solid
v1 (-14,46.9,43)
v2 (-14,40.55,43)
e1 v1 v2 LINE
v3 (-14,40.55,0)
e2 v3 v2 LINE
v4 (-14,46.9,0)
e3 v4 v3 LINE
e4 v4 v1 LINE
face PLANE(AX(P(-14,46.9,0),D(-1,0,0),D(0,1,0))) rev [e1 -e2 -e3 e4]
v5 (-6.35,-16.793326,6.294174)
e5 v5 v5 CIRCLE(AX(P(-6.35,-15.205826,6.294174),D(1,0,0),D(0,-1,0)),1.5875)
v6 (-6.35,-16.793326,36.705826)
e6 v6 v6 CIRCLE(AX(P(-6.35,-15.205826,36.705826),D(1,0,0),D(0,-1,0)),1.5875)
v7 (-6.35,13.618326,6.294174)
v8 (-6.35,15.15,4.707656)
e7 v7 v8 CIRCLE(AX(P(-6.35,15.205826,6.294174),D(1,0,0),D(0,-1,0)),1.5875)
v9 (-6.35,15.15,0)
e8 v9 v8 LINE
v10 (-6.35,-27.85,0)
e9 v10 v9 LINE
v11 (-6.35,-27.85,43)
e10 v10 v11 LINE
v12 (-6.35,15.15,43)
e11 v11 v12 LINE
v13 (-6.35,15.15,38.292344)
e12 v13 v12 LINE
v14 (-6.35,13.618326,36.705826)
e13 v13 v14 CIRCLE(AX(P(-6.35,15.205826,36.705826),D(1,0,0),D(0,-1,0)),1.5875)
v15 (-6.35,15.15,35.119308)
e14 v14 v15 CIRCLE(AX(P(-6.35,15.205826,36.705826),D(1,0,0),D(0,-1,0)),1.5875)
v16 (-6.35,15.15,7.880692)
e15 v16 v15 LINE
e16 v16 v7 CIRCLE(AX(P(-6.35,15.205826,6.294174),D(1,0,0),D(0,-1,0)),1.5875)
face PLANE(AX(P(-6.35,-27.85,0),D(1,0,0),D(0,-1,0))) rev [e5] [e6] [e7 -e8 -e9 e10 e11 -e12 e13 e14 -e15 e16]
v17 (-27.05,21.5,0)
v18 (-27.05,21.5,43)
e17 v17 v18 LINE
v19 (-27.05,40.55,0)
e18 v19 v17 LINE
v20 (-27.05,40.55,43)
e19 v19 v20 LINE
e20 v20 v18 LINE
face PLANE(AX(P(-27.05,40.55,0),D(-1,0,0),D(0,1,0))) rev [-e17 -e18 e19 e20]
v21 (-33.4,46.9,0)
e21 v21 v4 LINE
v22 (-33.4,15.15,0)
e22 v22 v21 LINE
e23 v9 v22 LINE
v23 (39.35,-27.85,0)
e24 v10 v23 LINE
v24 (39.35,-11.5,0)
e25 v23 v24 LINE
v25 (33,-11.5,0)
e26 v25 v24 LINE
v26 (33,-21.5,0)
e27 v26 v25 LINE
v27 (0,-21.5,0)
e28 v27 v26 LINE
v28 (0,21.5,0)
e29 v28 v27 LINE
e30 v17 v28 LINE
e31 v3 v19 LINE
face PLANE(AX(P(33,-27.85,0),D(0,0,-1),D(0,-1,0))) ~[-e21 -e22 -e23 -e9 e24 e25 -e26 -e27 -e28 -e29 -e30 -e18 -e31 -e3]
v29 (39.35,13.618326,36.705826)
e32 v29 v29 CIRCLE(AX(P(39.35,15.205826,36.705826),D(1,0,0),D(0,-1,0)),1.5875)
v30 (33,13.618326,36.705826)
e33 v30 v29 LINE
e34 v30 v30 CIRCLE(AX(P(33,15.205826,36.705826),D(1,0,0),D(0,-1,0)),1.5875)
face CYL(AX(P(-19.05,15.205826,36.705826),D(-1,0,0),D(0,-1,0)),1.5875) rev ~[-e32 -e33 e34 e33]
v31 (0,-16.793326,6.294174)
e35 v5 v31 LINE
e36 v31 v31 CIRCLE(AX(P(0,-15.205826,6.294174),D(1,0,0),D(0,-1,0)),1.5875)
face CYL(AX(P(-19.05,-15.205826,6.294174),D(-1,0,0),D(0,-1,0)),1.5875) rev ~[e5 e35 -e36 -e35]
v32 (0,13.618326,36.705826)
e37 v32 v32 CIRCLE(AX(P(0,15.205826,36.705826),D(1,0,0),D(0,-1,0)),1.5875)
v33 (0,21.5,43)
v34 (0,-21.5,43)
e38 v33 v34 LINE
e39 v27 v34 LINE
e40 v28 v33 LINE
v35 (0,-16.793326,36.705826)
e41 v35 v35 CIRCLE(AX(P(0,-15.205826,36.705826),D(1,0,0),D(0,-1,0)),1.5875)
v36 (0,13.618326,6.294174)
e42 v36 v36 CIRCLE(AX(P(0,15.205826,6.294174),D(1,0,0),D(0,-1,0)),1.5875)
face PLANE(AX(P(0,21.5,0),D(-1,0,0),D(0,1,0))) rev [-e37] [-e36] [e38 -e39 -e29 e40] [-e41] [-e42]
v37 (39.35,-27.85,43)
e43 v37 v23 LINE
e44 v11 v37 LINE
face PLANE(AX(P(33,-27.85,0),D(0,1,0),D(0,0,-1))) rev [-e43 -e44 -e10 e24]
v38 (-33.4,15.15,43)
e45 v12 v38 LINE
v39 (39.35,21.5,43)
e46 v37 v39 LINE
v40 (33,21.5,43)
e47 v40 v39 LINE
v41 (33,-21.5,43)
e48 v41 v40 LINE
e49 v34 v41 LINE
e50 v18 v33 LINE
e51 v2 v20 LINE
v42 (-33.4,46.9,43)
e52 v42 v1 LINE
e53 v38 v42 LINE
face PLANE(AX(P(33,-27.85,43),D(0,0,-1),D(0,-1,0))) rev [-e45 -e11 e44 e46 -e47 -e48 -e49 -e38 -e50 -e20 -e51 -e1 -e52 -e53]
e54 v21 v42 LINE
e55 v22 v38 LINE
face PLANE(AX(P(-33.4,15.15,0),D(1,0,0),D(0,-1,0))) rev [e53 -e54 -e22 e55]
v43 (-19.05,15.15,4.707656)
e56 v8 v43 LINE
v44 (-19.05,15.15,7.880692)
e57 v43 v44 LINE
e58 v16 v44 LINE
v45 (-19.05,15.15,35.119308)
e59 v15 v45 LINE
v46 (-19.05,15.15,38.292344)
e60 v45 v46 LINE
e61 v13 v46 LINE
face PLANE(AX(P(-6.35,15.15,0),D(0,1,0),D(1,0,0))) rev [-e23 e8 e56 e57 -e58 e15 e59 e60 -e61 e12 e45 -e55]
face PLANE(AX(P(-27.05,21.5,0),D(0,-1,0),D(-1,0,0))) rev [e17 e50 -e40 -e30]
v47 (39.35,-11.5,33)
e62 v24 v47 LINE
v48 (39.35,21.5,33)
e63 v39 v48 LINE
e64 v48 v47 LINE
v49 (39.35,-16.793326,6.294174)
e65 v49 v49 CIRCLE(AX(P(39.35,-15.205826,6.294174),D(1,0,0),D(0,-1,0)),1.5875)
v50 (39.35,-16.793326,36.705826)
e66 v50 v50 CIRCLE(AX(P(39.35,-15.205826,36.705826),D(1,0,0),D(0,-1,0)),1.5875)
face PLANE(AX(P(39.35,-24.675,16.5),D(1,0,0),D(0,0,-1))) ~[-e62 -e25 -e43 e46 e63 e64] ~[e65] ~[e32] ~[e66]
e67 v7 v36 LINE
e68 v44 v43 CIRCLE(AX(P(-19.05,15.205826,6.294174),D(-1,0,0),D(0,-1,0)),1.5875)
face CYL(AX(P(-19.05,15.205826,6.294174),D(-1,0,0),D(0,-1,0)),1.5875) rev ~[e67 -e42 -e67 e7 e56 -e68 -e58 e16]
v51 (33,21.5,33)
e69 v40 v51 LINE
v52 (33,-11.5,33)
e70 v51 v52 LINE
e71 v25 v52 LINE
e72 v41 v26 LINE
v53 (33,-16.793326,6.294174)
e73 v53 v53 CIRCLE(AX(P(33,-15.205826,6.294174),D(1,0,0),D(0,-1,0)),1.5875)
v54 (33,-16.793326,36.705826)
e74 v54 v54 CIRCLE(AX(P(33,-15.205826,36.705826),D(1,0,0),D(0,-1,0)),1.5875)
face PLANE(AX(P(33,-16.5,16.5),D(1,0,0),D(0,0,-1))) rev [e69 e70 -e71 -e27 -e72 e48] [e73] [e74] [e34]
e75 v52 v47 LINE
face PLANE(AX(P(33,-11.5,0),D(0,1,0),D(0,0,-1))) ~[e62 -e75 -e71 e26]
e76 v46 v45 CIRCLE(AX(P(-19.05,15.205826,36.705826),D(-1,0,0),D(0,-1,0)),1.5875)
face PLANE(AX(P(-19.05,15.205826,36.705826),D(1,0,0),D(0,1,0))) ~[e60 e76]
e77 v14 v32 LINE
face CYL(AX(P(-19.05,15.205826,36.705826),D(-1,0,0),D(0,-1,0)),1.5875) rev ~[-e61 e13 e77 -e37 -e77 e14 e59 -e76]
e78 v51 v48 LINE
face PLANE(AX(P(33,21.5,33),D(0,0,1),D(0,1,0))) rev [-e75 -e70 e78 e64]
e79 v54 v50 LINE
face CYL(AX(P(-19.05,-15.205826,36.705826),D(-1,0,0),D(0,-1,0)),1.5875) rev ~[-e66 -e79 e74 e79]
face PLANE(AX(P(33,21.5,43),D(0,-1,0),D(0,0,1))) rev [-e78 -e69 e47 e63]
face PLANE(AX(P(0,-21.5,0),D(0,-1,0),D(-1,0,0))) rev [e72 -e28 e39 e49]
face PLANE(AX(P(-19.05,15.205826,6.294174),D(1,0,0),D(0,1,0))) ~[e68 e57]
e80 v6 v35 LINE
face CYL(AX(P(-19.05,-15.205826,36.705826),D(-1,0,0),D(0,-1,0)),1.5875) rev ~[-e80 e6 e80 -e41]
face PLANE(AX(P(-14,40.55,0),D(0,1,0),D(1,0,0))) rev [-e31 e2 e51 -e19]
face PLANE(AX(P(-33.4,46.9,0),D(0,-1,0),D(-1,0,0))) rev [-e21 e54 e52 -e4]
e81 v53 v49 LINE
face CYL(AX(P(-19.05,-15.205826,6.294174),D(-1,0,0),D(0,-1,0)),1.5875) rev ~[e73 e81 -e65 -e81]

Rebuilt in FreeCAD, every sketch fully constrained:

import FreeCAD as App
import Part
import Sketcher
Q = App.Units.Quantity

doc = App.newDocument("Part")
body = doc.addObject("PartDesign::Body", "Body")

sketch1 = doc.addObject("Sketcher::SketchObject", "Sketch")
body.addObject(sketch1)
sketch1.AttachmentSupport = (doc.XY_Plane, [""])
sketch1.MapMode = "FlatFace"
sketch1.addGeometry([
    Part.LineSegment(App.Vector(-6, 15, 0), App.Vector(-6, -28, 0)),
    Part.LineSegment(App.Vector(-6, -28, 0), App.Vector(33, -28, 0)),
    Part.LineSegment(App.Vector(33, -28, 0), App.Vector(33, -22, 0)),
    Part.LineSegment(App.Vector(33, -22, 0), App.Vector(0, -22, 0)),
    Part.LineSegment(App.Vector(0, -22, 0), App.Vector(0, 22, 0)),
    Part.LineSegment(App.Vector(0, 22, 0), App.Vector(-27, 22, 0)),
    Part.LineSegment(App.Vector(-27, 22, 0), App.Vector(-27, 41, 0)),
    Part.LineSegment(App.Vector(-27, 41, 0), App.Vector(-14, 41, 0)),
    Part.LineSegment(App.Vector(-14, 41, 0), App.Vector(-14, 47, 0)),
    Part.LineSegment(App.Vector(-14, 47, 0), App.Vector(-33, 47, 0)),
    Part.LineSegment(App.Vector(-33, 47, 0), App.Vector(-33, 15, 0)),
    Part.LineSegment(App.Vector(-33, 15, 0), App.Vector(-6, 15, 0)),
], False)
sketch1.addConstraint([
    Sketcher.Constraint("Coincident", 0, 2, 1, 1),
    Sketcher.Constraint("Coincident", 1, 2, 2, 1),
    Sketcher.Constraint("Coincident", 2, 2, 3, 1),
    Sketcher.Constraint("Coincident", 3, 2, 4, 1),
    Sketcher.Constraint("Coincident", 4, 2, 5, 1),
    Sketcher.Constraint("Coincident", 5, 2, 6, 1),
    Sketcher.Constraint("Coincident", 6, 2, 7, 1),
    Sketcher.Constraint("Coincident", 7, 2, 8, 1),
    Sketcher.Constraint("Coincident", 8, 2, 9, 1),
    Sketcher.Constraint("Coincident", 9, 2, 10, 1),
    Sketcher.Constraint("Coincident", 10, 2, 11, 1),
    Sketcher.Constraint("Coincident", 11, 2, 0, 1),
    Sketcher.Constraint("Vertical", 0),
    Sketcher.Constraint("Horizontal", 1),
    Sketcher.Constraint("Vertical", 2),
    Sketcher.Constraint("Horizontal", 3),
    Sketcher.Constraint("Vertical", 4),
    Sketcher.Constraint("Horizontal", 5),
    Sketcher.Constraint("Vertical", 6),
    Sketcher.Constraint("Horizontal", 7),
    Sketcher.Constraint("Vertical", 8),
    Sketcher.Constraint("Horizontal", 9),
    Sketcher.Constraint("Vertical", 10),
    Sketcher.Constraint("Horizontal", 11),
    Sketcher.Constraint("Symmetric", 3, 2, 4, 2, -1, 1),
    Sketcher.Constraint("Equal", 5, 11),
    Sketcher.Constraint("Equal", 0, 4),
    Sketcher.Constraint("Equal", 2, 8),
    Sketcher.Constraint("DistanceX", 3, 2, 3, 1, Q("33 mm")),
    Sketcher.Constraint("DistanceY", 0, 2, 0, 1, Q("43 mm")),
    Sketcher.Constraint("DistanceX", 9, 2, 9, 1, Q("19.4 mm")),
    Sketcher.Constraint("DistanceX", 7, 2, -1, 1, Q("14 mm")),
    Sketcher.Constraint("DistanceX", 1, 1, 1, 2, Q("39.35 mm")),
    Sketcher.Constraint("DistanceY", 2, 1, 2, 2, Q("6.35 mm")),
    Sketcher.Constraint("DistanceY", 6, 1, 6, 2, Q("19.05 mm")),
])
pad1 = doc.addObject("PartDesign::Pad", "Pad")
body.addObject(pad1)
pad1.Profile = sketch1
pad1.Length = 43
pad1.Reversed = True

sketch2 = doc.addObject("Sketcher::SketchObject", "Sketch001")
body.addObject(sketch2)
sketch2.AttachmentSupport = (doc.YZ_Plane, [""])
sketch2.MapMode = "FlatFace"
sketch2.AttachmentOffset = App.Placement(App.Vector(0, 0, 33), App.Rotation())
sketch2.addGeometry([
    Part.LineSegment(App.Vector(-27.9, 0, 0), App.Vector(-27.9, -43, 0)),
    Part.LineSegment(App.Vector(-27.9, -43, 0), App.Vector(21.5, -43, 0)),
    Part.LineSegment(App.Vector(21.5, -43, 0), App.Vector(21.5, -33, 0)),
    Part.LineSegment(App.Vector(21.5, -33, 0), App.Vector(-11.5, -33, 0)),
    Part.LineSegment(App.Vector(-11.5, -33, 0), App.Vector(-11.5, 0, 0)),
    Part.LineSegment(App.Vector(-11.5, 0, 0), App.Vector(-27.9, 0, 0)),
    Part.Circle(App.Vector(-15.2, -6.3, 0), App.Vector(0, 0, 1), 1.5),
    Part.Circle(App.Vector(15.2, -36.7, 0), App.Vector(0, 0, 1), 1.5),
    Part.Circle(App.Vector(-15.2, -36.7, 0), App.Vector(0, 0, 1), 1.5),
], False)
sketch2.addConstraint([
    Sketcher.Constraint("Coincident", 0, 2, 1, 1),
    Sketcher.Constraint("Coincident", 1, 2, 2, 1),
    Sketcher.Constraint("Coincident", 2, 2, 3, 1),
    Sketcher.Constraint("Coincident", 3, 2, 4, 1),
    Sketcher.Constraint("Coincident", 4, 2, 5, 1),
    Sketcher.Constraint("Coincident", 5, 2, 0, 1),
    Sketcher.Constraint("Vertical", 0),
    Sketcher.Constraint("Horizontal", 1),
    Sketcher.Constraint("Vertical", 2),
    Sketcher.Constraint("Horizontal", 3),
    Sketcher.Constraint("Vertical", 4),
    Sketcher.Constraint("Horizontal", 5),
    Sketcher.Constraint("Equal", 6, 7),
    Sketcher.Constraint("Equal", 7, 8),
    Sketcher.Constraint("Symmetric", 7, 3, 8, 3, -2),
    Sketcher.Constraint("PointOnObject", 4, 2, -1),
    Sketcher.Constraint("Vertical", 6, 3, 8, 3),
    Sketcher.Constraint("Equal", 3, 4),
    Sketcher.Constraint("Diameter", 6, Q("3 mm")),
    Sketcher.Constraint("DistanceX", 3, 2, 3, 1, Q("33 mm")),
    Sketcher.Constraint("DistanceY", 0, 2, 0, 1, Q("43 mm")),
    Sketcher.Constraint("DistanceX", 1, 1, 1, 2, Q("49.35 mm")),
    Sketcher.Constraint("DistanceX", -1, 1, 1, 2, Q("21.5 mm")),
    Sketcher.Constraint("DistanceX", 6, 3, 7, 3, Q("30.411652 mm")),
    Sketcher.Constraint("DistanceY", 7, 3, 6, 3, Q("30.411652 mm")),
    Sketcher.Constraint("DistanceY", 6, 3, -1, 1, Q("6.294174 mm")),
])
pad2 = doc.addObject("PartDesign::Pad", "Pad001")
body.addObject(pad2)
pad2.Profile = sketch2
pad2.Length = 6.35

sketch3 = doc.addObject("Sketcher::SketchObject", "Sketch002")
body.addObject(sketch3)
sketch3.AttachmentSupport = (doc.YZ_Plane, [""])
sketch3.MapMode = "FlatFace"
sketch3.AttachmentOffset = App.Placement(App.Vector(0, 0, -6.35), App.Rotation())
sketch3.addGeometry([
    Part.Circle(App.Vector(-15.2, -6.3, 0), App.Vector(0, 0, 1), 1.6),
    Part.Circle(App.Vector(15.2, -6.3, 0), App.Vector(0, 0, 1), 1.6),
    Part.Circle(App.Vector(15.2, -36.7, 0), App.Vector(0, 0, 1), 1.6),
    Part.Circle(App.Vector(-15.2, -36.7, 0), App.Vector(0, 0, 1), 1.6),
], False)
sketch3.addConstraint([
    Sketcher.Constraint("Equal", 0, 1),
    Sketcher.Constraint("Equal", 1, 2),
    Sketcher.Constraint("Equal", 2, 3),
    Sketcher.Constraint("Symmetric", 0, 3, 1, 3, -2),
    Sketcher.Constraint("Symmetric", 2, 3, 3, 3, -2),
    Sketcher.Constraint("Vertical", 1, 3, 2, 3),
    Sketcher.Constraint("Diameter", 0, Q("3.175 mm")),
    Sketcher.Constraint("DistanceX", 0, 3, 1, 3, Q("30.411652 mm")),
    Sketcher.Constraint("DistanceY", 2, 3, 1, 3, Q("30.411652 mm")),
    Sketcher.Constraint("DistanceY", 0, 3, -1, 1, Q("6.294174 mm")),
])
pocket1 = doc.addObject("PartDesign::Pocket", "Pocket")
body.addObject(pocket1)
pocket1.Profile = sketch3
pocket1.Type = "TwoLengths"
pocket1.Length = 79.339645
pocket1.Length2 = 12.7
pocket1.Reversed = True
body2 = doc.addObject("PartDesign::Body", "Body001")
doc.recompute()

mirroring = doc.addObject("Part::Mirroring", "Mirroring")
mirroring.Source = body
mirroring.Base = App.Vector(0, 0, 0)
mirroring.Normal = App.Vector(0, 0, 1)
body2.BaseFeature = mirroring
doc.recompute()
body.Visibility = False
mirroring.Visibility = False

doc.recompute()
